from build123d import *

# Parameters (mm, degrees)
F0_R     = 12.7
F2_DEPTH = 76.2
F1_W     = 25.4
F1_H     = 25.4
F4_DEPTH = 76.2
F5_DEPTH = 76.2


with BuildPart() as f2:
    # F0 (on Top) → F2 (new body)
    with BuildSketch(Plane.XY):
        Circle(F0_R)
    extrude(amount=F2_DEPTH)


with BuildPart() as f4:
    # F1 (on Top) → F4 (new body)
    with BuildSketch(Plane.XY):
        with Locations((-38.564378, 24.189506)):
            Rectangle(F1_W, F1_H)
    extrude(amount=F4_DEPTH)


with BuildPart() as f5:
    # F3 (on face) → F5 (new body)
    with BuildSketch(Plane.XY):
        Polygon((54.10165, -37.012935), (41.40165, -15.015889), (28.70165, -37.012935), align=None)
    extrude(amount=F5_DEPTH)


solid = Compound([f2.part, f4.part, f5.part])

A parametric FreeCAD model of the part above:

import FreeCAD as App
import Part
import Sketcher
from FreeCAD import Vector
Q = App.Units.Quantity


def add_polygon(sketch, points):
    """Adds a closed chain of lines whose ends are joined by coincident constraints."""
    first, n = sketch.GeometryCount, len(points)
    for a, b in zip(points, points[1:] + points[:1]):
        sketch.addGeometry(Part.LineSegment(App.Vector(*a, 0), App.Vector(*b, 0)), False)
    for i in range(n):
        sketch.addConstraint(Sketcher.Constraint("Coincident", first + i, 2, first + (i + 1) % n, 1))

doc = App.newDocument("Part")
body = doc.addObject("PartDesign::Body", "Body")

# Sketch on XY plane
sketch1 = doc.addObject("Sketcher::SketchObject", "Sketch")
body.addObject(sketch1)
sketch1.AttachmentSupport = (doc.XY_Plane, [""])
sketch1.MapMode = "FlatFace"
sketch1.addGeometry(Part.Circle(Vector(0, 0, 0), Vector(0, 0, 1), 13), False)
sketch1.addConstraint(Sketcher.Constraint("Coincident", 0, 3, -1, 1))
sketch1.addConstraint(Sketcher.Constraint("Diameter", 0, Q("1 in")))
pad1 = doc.addObject("PartDesign::Pad", "Pad")
body.addObject(pad1)
pad1.Profile = sketch1
pad1.Length = Q("3 in")
body2 = doc.addObject("PartDesign::Body", "Body001")

# Sketch on XY plane
sketch2 = doc.addObject("Sketcher::SketchObject", "Sketch001")
body2.addObject(sketch2)
sketch2.AttachmentSupport = (doc.getObject("XY_Plane001"), [""])
sketch2.MapMode = "FlatFace"
add_polygon(sketch2, [(-51, 37), (-51, 11), (-26, 11), (-26, 37)])  # lines 0-3
sketch2.addConstraint(Sketcher.Constraint("Vertical", 0))
sketch2.addConstraint(Sketcher.Constraint("Horizontal", 1))
sketch2.addConstraint(Sketcher.Constraint("Vertical", 2))
sketch2.addConstraint(Sketcher.Constraint("Horizontal", 3))
sketch2.addConstraint(Sketcher.Constraint("Equal", 3, 0))
sketch2.addConstraint(Sketcher.Constraint("DistanceX", 1, 1, 1, 2, Q("1 in")))
sketch2.addConstraint(Sketcher.Constraint("DistanceX", 0, 2, -1, 1, 51.264378))
sketch2.addConstraint(Sketcher.Constraint("DistanceY", -1, 1, 0, 2, 11.489506))
pad2 = doc.addObject("PartDesign::Pad", "Pad001")
body2.addObject(pad2)
pad2.Profile = sketch2
pad2.Length = Q("3 in")
body3 = doc.addObject("PartDesign::Body", "Body002")

# Sketch on XY plane
sketch3 = doc.addObject("Sketcher::SketchObject", "Sketch002")
body3.addObject(sketch3)
sketch3.AttachmentSupport = (doc.getObject("XY_Plane002"), [""])
sketch3.MapMode = "FlatFace"
add_polygon(sketch3, [(54, -37), (41, -15), (29, -37)])  # lines 0-2
sketch3.addConstraint(Sketcher.Constraint("Horizontal", 2))
sketch3.addConstraint(Sketcher.Constraint("Equal", 0, 1))
sketch3.addConstraint(Sketcher.Constraint("DistanceX", 2, 1, 2, 2, Q("1 in")))
sketch3.addConstraint(Sketcher.Constraint("Distance", 0, Q("1 in")))
sketch3.addConstraint(Sketcher.Constraint("DistanceX", -1, 1, 0, 2, 41.40165))
sketch3.addConstraint(Sketcher.Constraint("DistanceY", 0, 2, -1, 1, 15.015889))
pad3 = doc.addObject("PartDesign::Pad", "Pad002")
body3.addObject(pad3)
pad3.Profile = sketch3
pad3.Length = Q("3 in")

doc.recompute()
